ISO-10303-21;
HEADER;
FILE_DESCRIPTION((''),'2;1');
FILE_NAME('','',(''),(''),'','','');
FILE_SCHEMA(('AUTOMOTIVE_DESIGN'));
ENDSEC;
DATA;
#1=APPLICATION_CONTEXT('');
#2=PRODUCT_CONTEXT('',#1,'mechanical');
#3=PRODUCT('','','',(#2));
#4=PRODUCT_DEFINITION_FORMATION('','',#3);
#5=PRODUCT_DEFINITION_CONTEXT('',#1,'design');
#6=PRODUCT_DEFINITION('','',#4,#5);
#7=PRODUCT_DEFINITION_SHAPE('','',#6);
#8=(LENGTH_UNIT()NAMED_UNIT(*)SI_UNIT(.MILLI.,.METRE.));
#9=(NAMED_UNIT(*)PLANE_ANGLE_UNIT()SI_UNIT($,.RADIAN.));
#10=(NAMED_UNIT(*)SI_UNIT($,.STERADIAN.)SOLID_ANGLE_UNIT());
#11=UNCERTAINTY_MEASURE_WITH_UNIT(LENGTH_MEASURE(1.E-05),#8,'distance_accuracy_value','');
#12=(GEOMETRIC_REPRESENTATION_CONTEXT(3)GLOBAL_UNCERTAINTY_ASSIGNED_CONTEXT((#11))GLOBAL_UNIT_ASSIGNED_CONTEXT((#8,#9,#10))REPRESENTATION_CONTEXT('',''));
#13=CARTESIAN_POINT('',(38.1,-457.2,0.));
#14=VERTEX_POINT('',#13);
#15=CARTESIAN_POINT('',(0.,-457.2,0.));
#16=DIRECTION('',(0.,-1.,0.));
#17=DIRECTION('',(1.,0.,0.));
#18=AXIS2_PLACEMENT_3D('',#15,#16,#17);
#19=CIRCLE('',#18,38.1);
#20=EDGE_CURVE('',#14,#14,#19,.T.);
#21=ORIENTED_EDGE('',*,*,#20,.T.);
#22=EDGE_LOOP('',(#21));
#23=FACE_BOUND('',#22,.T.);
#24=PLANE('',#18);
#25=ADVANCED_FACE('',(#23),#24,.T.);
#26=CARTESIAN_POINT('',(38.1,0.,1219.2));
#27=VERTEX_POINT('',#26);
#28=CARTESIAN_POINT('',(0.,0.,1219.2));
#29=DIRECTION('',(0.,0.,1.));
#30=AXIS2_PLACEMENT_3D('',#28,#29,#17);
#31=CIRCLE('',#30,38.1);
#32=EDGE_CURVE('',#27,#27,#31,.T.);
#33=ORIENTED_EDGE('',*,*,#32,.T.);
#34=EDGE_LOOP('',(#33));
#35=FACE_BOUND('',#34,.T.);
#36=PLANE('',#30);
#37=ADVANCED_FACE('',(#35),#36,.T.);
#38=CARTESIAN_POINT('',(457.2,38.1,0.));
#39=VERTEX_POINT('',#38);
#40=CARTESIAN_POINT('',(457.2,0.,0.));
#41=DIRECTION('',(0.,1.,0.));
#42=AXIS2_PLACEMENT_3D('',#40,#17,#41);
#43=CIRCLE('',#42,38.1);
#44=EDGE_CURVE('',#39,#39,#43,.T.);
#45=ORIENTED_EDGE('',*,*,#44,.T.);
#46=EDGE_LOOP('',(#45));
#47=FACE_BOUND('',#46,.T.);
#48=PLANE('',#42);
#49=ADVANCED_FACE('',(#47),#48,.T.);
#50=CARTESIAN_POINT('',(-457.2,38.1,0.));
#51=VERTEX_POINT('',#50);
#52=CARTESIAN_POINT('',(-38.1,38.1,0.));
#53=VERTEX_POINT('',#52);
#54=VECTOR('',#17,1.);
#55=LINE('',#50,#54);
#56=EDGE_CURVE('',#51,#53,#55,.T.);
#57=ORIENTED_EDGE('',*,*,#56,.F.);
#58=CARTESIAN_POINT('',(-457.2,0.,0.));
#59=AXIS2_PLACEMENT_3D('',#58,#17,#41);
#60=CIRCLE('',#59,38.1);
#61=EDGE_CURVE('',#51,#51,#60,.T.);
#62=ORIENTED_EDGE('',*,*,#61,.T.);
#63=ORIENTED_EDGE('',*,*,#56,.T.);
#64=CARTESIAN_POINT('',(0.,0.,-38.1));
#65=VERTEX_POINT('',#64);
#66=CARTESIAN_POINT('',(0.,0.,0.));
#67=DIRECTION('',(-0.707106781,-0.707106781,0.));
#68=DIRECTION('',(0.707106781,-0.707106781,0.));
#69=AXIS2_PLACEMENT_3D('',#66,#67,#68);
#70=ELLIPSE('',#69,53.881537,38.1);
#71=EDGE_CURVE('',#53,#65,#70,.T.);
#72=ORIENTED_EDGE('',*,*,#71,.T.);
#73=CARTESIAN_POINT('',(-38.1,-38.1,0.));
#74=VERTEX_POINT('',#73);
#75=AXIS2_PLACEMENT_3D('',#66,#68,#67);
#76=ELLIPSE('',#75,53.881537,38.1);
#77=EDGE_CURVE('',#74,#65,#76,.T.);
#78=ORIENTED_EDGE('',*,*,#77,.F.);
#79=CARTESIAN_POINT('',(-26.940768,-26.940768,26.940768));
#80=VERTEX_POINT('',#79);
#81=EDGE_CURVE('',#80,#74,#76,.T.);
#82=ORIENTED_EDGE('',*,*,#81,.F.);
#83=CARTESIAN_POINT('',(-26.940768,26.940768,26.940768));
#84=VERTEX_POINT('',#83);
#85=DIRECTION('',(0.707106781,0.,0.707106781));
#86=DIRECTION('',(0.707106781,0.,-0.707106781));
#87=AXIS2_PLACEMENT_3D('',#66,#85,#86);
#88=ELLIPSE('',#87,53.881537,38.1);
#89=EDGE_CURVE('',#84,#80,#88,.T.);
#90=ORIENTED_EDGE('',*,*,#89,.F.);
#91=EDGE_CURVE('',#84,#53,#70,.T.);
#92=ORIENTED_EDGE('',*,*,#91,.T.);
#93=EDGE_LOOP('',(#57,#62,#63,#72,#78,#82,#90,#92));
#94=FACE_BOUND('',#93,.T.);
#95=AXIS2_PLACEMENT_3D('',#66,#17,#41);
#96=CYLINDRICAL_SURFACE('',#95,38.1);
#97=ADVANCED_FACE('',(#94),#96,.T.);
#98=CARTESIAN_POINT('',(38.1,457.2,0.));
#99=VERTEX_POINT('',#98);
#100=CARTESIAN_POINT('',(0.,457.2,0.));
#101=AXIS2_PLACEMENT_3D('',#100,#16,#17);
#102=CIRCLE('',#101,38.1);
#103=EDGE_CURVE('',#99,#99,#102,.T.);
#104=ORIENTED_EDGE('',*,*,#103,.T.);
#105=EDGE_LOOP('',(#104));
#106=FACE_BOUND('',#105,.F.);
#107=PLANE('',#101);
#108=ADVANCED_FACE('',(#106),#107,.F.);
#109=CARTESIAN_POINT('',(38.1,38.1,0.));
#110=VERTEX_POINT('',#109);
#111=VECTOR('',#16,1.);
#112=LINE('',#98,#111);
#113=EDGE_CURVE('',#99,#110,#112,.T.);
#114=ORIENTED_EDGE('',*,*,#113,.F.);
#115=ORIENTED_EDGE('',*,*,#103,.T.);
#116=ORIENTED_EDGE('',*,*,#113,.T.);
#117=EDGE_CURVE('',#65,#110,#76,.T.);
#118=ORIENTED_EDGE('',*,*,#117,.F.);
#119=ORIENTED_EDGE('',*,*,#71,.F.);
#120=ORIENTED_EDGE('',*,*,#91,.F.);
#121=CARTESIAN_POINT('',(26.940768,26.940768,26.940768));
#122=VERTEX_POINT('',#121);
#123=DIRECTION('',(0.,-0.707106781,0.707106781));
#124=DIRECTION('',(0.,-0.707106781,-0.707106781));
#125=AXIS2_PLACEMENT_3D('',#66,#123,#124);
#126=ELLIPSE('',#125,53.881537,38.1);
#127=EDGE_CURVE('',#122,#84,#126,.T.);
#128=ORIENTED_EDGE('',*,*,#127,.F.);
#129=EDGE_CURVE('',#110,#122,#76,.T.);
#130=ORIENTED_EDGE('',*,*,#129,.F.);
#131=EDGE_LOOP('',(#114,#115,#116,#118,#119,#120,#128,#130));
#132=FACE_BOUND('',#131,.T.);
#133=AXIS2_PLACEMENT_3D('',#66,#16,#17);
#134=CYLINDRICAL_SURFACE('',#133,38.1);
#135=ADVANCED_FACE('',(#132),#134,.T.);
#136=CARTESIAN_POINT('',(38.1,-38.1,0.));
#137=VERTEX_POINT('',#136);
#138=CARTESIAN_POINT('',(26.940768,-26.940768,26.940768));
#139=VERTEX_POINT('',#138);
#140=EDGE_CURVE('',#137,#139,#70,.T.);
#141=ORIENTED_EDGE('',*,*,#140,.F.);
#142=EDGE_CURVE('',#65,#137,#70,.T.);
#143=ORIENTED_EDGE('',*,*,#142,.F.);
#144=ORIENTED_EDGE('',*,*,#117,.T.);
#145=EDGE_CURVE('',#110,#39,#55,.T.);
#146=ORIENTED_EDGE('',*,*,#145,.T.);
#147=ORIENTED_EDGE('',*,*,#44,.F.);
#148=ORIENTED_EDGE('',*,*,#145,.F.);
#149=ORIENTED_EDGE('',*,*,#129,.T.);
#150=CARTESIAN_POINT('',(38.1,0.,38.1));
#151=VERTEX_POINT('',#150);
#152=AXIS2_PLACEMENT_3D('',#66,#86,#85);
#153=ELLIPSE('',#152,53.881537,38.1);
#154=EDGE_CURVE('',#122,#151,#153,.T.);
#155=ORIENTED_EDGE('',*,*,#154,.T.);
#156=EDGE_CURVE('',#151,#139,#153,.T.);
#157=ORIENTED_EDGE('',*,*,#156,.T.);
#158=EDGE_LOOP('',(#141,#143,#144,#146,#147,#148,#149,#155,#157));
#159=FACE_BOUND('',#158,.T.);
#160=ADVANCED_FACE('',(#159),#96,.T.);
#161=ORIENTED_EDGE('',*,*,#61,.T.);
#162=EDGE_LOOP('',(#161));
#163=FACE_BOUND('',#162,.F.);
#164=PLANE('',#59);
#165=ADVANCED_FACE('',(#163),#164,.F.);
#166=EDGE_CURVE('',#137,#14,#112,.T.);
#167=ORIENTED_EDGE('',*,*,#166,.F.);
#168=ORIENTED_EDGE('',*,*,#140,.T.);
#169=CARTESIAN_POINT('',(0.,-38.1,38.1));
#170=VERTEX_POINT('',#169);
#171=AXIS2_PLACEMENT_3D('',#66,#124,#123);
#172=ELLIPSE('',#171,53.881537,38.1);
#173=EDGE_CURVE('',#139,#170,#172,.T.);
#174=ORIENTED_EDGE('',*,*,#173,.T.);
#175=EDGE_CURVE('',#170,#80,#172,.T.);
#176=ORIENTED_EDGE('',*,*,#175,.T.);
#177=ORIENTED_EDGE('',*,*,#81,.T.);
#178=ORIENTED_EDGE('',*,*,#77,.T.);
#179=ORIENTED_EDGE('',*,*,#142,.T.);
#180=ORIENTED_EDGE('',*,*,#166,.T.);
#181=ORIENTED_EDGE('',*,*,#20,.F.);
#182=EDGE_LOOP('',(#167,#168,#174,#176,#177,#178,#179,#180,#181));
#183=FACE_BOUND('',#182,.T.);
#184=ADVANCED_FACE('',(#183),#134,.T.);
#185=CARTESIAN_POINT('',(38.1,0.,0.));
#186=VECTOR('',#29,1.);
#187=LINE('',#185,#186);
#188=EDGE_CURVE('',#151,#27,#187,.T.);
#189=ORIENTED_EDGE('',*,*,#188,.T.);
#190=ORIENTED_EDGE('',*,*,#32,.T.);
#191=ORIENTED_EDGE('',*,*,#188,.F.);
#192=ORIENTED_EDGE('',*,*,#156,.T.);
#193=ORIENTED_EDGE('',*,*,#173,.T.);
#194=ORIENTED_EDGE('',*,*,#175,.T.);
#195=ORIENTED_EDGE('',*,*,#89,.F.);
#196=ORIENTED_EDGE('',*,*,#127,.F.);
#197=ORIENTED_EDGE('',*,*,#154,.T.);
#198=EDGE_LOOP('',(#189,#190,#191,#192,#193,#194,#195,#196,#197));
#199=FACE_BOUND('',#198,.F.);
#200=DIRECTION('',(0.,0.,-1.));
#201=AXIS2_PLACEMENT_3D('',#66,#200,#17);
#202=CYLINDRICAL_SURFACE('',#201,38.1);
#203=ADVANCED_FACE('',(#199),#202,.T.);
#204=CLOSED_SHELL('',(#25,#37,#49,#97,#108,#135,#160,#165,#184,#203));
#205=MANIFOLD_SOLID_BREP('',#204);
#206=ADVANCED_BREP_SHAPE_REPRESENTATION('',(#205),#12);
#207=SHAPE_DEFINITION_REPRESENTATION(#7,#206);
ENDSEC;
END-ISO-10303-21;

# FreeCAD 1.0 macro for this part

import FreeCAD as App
import Part
import Sketcher

V = App.Vector
Q = App.Units.Quantity

doc = App.newDocument("Part")
params = doc.addObject("Spreadsheet::Sheet", "Params")
for row, (alias, value) in enumerate([
    ("sketch1_diameter", "3 in"),
    ("pad1_length", "36 in"),
    ("sketch2_diameter", "3 in"),
    ("pad2_length", "36 in"),
    ("sketch3_diameter", "3 in"),
    ("pad3_length", "48 in"),
], start=1):
    params.set(f"A{row}", alias)
    params.set(f"B{row}", "=" + value)
    params.setAlias(f"B{row}", alias)

body = doc.addObject("PartDesign::Body", "Body")

sketch1 = body.newObject("Sketcher::SketchObject", "Sketch")
sketch1.AttachmentSupport = (doc.getObject("XZ_Plane"), [""])
sketch1.MapMode = "FlatFace"
sketch1.addGeometry(Part.Circle(V(0, 0, 0), V(0, 0, 1), 38), False)
sketch1.addConstraint([
    Sketcher.Constraint("Coincident", 0, 3, -1, 1),
    Sketcher.Constraint("Diameter", 0, Q("3 in")),
])
sketch1.setExpression("Constraints[1]", "Params.sketch1_diameter")
pad1 = body.newObject("PartDesign::Pad", "Pad")
pad1.Profile = sketch1
pad1.setExpression("Length", "Params.pad1_length")
pad1.Midplane = True

sketch2 = body.newObject("Sketcher::SketchObject", "Sketch001")
sketch2.AttachmentSupport = (doc.getObject("YZ_Plane"), [""])
sketch2.MapMode = "FlatFace"
sketch2.addGeometry(Part.Circle(V(0, 0, 0), V(0, 0, 1), 38), False)
sketch2.addConstraint([
    Sketcher.Constraint("Coincident", 0, 3, -1, 1),
    Sketcher.Constraint("Diameter", 0, Q("3 in")),
])
sketch2.setExpression("Constraints[1]", "Params.sketch2_diameter")
pad2 = body.newObject("PartDesign::Pad", "Pad001")
pad2.Profile = sketch2
pad2.setExpression("Length", "Params.pad2_length")
pad2.Midplane = True

sketch3 = body.newObject("Sketcher::SketchObject", "Sketch002")
sketch3.AttachmentSupport = (doc.getObject("XY_Plane"), [""])
sketch3.MapMode = "FlatFace"
sketch3.addGeometry(Part.Circle(V(0, 0, 0), V(0, 0, 1), 38), False)
sketch3.addConstraint([
    Sketcher.Constraint("Coincident", 0, 3, -1, 1),
    Sketcher.Constraint("Diameter", 0, Q("3 in")),
])
sketch3.setExpression("Constraints[1]", "Params.sketch3_diameter")
pad3 = body.newObject("PartDesign::Pad", "Pad002")
pad3.Profile = sketch3
pad3.setExpression("Length", "Params.pad3_length")

doc.recompute()
